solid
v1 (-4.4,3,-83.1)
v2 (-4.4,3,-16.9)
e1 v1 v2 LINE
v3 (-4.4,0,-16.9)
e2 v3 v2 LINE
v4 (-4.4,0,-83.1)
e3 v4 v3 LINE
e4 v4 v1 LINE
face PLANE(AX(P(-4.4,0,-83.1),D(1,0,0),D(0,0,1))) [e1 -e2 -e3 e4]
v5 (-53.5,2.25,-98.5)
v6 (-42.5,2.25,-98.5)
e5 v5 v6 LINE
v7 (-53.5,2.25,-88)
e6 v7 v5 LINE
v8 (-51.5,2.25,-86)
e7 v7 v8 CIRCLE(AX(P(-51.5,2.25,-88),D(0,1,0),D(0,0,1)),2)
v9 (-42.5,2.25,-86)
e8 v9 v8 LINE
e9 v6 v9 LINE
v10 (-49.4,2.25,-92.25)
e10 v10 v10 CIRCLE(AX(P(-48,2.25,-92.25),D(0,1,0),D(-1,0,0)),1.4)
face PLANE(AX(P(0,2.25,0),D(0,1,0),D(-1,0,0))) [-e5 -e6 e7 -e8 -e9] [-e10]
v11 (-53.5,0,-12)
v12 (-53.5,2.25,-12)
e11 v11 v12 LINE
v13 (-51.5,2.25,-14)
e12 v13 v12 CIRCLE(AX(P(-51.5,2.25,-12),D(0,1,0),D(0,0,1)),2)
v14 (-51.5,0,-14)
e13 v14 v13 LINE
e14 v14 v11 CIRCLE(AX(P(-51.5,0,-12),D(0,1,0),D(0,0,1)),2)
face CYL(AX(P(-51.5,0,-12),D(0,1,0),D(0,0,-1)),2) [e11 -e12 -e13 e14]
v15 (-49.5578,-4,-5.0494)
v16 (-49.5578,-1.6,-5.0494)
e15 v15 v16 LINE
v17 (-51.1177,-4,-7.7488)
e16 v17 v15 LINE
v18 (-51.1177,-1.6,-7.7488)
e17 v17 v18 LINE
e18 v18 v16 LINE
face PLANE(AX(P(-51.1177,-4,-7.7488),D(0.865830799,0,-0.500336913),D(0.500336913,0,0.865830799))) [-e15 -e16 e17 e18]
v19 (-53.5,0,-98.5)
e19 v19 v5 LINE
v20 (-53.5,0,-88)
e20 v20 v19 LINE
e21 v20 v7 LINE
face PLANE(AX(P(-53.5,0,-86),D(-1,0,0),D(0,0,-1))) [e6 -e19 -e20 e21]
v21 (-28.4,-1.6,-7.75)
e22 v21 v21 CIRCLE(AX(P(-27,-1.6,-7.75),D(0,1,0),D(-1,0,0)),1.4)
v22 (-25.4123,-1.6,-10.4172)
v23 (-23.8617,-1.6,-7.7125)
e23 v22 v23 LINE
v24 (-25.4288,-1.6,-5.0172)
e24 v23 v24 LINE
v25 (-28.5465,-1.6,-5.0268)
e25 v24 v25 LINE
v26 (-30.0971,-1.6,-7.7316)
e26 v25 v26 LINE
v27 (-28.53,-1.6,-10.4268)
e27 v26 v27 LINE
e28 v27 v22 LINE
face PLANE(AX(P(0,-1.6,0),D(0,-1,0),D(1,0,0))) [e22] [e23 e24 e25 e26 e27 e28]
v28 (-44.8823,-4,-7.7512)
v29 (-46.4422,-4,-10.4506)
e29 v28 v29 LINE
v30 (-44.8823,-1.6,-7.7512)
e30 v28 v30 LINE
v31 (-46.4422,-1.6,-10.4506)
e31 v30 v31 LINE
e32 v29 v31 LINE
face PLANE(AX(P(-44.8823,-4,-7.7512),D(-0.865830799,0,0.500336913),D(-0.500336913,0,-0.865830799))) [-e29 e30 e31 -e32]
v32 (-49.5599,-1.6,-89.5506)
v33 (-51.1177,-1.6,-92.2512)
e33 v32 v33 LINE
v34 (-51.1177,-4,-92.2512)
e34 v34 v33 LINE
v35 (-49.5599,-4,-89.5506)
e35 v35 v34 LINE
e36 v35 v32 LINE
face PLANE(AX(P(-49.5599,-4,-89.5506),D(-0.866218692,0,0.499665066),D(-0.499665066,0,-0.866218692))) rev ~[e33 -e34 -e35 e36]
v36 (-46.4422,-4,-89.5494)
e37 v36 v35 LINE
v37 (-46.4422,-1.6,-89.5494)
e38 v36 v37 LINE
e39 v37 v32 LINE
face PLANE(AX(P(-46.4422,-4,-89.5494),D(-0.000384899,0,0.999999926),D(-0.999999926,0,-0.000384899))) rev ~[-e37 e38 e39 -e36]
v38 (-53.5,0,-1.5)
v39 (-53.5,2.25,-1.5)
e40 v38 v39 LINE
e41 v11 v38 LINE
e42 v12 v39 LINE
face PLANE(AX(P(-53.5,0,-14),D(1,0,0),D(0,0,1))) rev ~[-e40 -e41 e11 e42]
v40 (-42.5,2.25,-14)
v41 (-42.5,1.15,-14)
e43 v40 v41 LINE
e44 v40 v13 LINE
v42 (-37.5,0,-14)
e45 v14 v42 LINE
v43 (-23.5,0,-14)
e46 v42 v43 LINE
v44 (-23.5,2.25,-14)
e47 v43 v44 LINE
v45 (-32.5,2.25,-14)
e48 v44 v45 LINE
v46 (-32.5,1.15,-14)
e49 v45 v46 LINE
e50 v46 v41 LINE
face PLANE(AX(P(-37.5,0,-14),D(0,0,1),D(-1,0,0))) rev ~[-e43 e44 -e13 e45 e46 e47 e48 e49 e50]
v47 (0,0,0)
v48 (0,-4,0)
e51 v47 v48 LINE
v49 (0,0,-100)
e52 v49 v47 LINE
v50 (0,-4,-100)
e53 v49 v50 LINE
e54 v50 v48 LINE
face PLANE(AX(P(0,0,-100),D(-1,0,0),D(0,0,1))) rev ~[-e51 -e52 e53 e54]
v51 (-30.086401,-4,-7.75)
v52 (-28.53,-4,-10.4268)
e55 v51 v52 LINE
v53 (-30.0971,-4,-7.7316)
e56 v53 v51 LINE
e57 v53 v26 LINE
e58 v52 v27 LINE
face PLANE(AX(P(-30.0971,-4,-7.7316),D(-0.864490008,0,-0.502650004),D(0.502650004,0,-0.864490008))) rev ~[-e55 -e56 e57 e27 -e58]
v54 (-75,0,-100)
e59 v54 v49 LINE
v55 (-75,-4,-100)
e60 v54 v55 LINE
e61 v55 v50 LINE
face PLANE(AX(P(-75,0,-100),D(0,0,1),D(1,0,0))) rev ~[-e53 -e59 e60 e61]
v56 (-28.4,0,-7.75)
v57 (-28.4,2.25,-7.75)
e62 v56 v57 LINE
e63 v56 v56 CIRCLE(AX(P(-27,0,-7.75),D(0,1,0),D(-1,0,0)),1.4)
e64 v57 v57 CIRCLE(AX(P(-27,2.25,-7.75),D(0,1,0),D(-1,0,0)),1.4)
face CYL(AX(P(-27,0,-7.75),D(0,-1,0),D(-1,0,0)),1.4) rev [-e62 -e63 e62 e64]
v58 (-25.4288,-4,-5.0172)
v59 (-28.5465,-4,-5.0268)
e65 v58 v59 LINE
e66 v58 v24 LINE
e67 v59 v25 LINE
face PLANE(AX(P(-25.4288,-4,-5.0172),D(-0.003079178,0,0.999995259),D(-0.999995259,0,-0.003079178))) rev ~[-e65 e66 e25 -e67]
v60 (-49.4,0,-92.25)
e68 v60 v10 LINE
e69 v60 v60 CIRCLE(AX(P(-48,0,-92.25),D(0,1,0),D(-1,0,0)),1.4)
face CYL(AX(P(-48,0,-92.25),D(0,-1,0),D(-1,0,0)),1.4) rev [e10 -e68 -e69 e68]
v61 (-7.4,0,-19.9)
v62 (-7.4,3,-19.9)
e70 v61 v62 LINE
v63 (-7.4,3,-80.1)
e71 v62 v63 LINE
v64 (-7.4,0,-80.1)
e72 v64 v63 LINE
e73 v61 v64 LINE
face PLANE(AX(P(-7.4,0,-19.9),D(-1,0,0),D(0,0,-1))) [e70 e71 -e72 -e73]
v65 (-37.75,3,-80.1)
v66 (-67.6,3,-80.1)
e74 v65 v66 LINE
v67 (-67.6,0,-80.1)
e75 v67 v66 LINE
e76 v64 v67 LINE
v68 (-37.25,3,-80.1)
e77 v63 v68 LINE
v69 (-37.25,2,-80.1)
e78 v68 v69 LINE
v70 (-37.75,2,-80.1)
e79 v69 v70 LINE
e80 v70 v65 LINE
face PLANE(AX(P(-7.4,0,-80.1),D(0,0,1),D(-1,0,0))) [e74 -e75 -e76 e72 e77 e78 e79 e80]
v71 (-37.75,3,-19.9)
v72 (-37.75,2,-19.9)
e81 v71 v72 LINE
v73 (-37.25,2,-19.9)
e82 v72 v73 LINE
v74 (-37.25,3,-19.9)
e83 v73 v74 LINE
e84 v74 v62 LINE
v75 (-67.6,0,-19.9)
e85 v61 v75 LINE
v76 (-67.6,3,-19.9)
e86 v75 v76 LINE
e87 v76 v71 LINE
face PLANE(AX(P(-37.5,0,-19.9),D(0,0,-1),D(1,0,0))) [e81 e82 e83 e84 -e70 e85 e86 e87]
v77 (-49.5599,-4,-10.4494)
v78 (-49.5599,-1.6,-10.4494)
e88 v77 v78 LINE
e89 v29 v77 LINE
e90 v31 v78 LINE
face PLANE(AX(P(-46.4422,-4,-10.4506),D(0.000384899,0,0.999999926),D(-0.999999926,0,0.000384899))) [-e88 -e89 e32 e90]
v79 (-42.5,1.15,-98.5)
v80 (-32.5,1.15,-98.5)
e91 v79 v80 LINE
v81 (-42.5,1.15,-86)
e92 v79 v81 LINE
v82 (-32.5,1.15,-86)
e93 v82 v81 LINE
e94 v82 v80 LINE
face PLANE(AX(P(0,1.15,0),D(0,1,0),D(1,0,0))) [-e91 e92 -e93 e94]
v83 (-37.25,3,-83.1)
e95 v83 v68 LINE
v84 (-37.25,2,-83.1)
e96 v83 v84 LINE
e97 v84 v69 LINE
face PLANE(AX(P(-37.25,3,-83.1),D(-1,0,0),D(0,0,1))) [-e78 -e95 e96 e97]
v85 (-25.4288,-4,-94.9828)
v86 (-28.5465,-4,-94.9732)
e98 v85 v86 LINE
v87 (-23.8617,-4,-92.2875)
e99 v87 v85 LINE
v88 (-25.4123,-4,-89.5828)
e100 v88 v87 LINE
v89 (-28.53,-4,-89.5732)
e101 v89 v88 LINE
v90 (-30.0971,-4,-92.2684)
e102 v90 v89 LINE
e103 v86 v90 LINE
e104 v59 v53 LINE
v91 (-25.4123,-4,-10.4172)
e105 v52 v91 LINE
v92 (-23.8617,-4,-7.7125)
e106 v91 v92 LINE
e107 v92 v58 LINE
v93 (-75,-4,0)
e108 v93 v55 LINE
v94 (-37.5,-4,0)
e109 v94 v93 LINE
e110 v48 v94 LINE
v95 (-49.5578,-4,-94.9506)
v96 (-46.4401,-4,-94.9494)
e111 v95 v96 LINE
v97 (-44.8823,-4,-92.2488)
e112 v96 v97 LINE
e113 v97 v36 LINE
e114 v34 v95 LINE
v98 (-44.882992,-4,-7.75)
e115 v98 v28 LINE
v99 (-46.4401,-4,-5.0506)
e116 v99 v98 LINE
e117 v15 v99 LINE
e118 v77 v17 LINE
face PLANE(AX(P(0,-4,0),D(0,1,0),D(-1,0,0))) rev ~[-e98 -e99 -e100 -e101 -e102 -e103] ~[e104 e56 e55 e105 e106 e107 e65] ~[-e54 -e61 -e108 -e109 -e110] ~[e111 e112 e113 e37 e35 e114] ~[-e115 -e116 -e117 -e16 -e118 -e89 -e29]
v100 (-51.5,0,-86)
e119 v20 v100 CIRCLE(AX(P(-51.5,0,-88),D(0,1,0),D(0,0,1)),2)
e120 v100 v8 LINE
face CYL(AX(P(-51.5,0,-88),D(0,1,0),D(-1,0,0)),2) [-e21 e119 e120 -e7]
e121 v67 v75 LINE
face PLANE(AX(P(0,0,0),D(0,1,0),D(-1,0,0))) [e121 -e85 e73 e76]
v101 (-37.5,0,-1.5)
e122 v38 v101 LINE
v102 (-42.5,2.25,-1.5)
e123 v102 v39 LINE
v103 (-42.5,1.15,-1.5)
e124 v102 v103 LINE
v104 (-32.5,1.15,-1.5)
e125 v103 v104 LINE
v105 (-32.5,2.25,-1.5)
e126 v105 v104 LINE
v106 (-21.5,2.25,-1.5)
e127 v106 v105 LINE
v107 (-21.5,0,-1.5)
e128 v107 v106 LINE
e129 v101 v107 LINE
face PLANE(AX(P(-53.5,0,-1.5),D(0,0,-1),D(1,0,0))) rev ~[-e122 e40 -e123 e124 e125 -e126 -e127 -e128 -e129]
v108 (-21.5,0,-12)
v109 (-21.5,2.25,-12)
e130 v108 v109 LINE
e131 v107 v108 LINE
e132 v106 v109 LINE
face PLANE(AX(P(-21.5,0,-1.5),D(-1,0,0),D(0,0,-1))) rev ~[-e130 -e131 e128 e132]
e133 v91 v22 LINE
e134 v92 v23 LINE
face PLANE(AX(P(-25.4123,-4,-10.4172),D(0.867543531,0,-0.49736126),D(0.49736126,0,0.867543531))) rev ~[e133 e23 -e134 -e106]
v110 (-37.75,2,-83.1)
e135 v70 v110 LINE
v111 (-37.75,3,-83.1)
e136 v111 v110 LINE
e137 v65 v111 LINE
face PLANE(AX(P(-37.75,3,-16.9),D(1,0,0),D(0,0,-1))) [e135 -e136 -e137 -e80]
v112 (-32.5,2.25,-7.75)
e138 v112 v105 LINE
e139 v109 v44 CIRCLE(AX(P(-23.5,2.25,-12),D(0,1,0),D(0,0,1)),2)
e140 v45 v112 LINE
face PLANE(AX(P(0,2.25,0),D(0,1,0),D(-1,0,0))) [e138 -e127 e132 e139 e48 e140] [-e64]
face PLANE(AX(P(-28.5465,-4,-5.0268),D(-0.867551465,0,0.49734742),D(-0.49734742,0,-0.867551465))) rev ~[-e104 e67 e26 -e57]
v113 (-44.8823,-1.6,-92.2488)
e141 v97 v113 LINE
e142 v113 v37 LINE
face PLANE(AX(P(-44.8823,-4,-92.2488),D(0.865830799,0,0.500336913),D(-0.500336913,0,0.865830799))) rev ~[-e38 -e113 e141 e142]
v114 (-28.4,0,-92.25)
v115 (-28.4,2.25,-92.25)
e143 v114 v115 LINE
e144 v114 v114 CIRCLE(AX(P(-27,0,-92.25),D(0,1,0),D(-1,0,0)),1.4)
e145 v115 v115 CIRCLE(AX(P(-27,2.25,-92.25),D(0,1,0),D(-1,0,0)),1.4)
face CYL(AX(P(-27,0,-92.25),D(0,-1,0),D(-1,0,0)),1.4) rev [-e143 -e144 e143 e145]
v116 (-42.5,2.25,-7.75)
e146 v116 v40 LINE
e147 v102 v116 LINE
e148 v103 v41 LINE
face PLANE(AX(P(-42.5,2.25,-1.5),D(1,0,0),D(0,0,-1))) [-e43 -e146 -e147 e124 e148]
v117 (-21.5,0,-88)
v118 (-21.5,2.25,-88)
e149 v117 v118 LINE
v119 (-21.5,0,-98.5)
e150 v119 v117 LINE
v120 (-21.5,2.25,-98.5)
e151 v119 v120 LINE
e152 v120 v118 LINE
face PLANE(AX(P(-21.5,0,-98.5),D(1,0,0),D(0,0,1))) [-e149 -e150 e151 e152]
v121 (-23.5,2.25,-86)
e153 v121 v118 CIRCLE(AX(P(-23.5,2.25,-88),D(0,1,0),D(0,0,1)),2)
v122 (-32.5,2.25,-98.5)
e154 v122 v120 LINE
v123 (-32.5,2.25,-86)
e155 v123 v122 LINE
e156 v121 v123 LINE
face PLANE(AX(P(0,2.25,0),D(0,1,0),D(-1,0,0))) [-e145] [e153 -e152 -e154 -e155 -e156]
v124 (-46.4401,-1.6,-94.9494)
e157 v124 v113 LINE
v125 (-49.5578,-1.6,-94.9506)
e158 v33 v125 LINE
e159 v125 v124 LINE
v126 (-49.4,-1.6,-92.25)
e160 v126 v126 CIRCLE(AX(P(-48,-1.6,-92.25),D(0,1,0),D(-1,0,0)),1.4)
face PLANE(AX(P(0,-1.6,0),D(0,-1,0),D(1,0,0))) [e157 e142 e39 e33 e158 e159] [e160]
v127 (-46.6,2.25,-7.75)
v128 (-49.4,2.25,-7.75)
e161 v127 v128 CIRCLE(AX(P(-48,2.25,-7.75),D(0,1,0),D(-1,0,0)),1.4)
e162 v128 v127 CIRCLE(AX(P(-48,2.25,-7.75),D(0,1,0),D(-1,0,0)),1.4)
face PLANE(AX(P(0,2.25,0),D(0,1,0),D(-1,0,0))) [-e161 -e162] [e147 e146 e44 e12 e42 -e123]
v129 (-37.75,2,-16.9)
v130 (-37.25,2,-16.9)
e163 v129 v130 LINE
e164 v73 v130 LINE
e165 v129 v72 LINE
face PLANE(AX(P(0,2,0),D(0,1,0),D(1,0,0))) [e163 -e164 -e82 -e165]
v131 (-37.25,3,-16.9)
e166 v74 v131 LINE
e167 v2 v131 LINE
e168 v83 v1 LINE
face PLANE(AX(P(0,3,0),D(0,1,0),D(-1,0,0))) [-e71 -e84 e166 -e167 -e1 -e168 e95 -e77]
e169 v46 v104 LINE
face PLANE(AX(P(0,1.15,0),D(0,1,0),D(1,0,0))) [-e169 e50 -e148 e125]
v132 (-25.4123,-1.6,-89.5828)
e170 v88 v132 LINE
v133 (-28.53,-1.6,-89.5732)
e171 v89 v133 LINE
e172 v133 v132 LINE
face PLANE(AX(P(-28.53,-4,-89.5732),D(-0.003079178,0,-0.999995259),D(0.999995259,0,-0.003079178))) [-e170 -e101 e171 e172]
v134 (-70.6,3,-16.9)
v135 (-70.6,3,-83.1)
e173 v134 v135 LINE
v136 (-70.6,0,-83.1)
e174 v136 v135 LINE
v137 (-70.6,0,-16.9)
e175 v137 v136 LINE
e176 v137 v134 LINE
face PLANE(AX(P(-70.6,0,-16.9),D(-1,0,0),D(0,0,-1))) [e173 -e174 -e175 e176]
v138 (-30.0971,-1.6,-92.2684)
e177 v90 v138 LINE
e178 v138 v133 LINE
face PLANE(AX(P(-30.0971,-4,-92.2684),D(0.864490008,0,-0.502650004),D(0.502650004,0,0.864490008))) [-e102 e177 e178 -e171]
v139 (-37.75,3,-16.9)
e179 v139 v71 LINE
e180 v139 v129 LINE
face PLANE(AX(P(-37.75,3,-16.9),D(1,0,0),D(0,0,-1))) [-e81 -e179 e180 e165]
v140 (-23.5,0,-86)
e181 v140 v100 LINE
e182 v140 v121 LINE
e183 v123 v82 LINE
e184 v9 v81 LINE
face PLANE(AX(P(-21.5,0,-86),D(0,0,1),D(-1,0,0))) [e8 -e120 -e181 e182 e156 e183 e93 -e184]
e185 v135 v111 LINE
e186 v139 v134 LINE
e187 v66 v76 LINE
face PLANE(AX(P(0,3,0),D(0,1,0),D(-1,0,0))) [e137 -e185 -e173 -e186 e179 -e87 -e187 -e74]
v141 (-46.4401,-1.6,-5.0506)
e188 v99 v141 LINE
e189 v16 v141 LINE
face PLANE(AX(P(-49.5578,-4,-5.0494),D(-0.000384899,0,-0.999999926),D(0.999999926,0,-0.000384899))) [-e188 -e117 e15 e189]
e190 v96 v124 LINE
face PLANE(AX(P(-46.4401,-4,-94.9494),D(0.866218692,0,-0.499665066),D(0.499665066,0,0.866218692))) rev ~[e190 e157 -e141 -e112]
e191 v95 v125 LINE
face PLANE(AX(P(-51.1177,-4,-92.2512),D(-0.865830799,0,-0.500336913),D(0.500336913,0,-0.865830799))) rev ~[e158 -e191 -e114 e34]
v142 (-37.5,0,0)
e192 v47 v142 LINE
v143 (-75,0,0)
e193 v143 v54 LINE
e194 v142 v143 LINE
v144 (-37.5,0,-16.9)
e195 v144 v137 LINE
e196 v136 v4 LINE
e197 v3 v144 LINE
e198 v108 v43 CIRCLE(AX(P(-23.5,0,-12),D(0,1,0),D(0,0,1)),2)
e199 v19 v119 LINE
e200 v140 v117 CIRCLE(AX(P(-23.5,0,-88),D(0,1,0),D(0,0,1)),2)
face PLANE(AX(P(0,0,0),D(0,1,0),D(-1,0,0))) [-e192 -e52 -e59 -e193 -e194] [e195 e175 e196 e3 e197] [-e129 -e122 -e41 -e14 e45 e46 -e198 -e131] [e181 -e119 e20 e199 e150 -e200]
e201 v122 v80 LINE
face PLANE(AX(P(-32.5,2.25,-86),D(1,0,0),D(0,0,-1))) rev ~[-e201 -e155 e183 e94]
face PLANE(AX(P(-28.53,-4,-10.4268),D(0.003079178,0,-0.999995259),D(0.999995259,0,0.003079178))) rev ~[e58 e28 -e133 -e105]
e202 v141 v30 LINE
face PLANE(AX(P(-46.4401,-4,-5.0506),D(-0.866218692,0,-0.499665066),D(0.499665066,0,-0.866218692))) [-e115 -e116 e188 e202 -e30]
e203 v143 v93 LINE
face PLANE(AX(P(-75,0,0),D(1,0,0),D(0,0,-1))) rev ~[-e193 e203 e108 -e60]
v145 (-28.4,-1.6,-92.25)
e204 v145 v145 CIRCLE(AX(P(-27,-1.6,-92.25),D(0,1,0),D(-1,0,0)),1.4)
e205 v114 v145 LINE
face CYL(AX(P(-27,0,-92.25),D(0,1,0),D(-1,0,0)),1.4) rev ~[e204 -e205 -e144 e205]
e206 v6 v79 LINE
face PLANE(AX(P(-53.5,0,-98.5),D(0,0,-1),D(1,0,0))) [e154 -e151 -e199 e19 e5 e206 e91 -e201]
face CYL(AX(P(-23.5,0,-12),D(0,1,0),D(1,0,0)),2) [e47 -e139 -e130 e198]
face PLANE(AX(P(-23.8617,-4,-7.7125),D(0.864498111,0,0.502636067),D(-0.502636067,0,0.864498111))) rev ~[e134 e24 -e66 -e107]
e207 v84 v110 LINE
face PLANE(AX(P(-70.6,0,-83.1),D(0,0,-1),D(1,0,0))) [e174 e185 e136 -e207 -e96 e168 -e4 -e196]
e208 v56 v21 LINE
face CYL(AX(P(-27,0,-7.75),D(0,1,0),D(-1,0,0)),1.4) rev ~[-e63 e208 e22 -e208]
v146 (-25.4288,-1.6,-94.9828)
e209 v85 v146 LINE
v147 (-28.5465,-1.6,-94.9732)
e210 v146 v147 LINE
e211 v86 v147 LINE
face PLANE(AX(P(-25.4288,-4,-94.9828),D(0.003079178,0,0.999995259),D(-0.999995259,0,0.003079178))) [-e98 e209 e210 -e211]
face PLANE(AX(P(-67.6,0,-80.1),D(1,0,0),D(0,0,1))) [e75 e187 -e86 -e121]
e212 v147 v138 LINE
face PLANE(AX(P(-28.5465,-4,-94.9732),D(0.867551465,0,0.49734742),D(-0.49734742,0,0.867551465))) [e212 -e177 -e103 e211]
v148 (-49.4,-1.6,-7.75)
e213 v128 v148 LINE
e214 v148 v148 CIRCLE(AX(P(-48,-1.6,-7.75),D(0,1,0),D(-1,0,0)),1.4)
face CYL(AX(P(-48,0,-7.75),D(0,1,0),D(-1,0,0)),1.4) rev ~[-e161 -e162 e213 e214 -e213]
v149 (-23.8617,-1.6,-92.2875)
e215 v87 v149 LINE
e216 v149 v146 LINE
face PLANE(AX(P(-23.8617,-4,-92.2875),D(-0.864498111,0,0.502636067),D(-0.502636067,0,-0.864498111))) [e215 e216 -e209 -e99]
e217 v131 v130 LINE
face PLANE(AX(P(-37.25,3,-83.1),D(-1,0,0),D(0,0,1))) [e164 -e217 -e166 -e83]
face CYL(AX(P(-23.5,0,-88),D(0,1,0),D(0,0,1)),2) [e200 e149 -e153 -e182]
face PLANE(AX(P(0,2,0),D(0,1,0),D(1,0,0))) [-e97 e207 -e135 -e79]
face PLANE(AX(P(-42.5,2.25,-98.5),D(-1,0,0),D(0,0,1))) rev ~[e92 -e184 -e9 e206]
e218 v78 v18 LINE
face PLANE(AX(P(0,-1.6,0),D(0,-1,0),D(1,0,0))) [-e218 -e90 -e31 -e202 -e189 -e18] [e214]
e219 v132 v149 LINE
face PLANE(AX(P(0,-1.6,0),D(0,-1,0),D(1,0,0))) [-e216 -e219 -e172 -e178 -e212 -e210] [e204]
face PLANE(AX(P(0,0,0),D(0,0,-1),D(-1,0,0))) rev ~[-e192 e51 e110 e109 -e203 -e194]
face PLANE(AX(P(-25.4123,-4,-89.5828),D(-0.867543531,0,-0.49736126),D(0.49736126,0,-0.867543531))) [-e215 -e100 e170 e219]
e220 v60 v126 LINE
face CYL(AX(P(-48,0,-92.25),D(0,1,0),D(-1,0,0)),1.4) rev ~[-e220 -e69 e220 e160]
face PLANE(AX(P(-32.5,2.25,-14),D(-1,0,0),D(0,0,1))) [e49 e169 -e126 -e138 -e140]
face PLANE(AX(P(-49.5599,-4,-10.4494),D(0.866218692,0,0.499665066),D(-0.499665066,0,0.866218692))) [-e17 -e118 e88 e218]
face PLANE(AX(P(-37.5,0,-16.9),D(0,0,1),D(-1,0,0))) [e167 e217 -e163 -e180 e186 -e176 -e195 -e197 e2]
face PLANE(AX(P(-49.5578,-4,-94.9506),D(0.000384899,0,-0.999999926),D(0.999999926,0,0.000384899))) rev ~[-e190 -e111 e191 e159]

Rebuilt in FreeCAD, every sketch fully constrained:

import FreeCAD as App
import Part
import Sketcher
from FreeCAD import Vector


def edges_at(feature, points):
    """Names of the edges that pass closest to the given points."""
    edges = feature.Shape.Edges
    near = lambda p: min(range(len(edges)), key=lambda i: edges[i].distToShape(Part.Vertex(*p))[0])
    return sorted({f"Edge{near(p) + 1}" for p in points})

doc = App.newDocument("Part")
body = doc.addObject("PartDesign::Body", "Body")
body.AllowCompound = True

# Sketch on XZ plane
sketch1 = doc.addObject("Sketcher::SketchObject", "Sketch")
body.addObject(sketch1)
sketch1.AttachmentSupport = (doc.XZ_Plane, [""])
sketch1.MapMode = "FlatFace"
sketch1.addGeometry([
    Part.LineSegment(Vector(-70.6, -16.9, 0), Vector(-37.5, -16.9, 0)),  # 0
    Part.LineSegment(Vector(-37.5, -16.9, 0), Vector(-4.4, -16.9, 0)),  # 1
    Part.LineSegment(Vector(-4.4, -16.9, 0), Vector(-4.4, -83.1, 0)),  # 2
    Part.LineSegment(Vector(-4.4, -83.1, 0), Vector(-70.6, -83.1, 0)),  # 3
    Part.LineSegment(Vector(-70.6, -83.1, 0), Vector(-70.6, -16.9, 0)),  # 4
    Part.LineSegment(Vector(-7.4, -19.9, 0), Vector(-37.5, -19.9, 0)),  # 5
    Part.LineSegment(Vector(-37.5, -19.9, 0), Vector(-67.6, -19.9, 0)),  # 6
    Part.LineSegment(Vector(-67.6, -19.9, 0), Vector(-67.6, -80.1, 0)),  # 7
    Part.LineSegment(Vector(-67.6, -80.1, 0), Vector(-7.4, -80.1, 0)),  # 8
    Part.LineSegment(Vector(-7.4, -80.1, 0), Vector(-7.4, -19.9, 0)),  # 9
], False)
sketch1.addConstraint([
    Sketcher.Constraint("Coincident", 0, 2, 1, 1),
    Sketcher.Constraint("Coincident", 1, 2, 2, 1),
    Sketcher.Constraint("Coincident", 2, 2, 3, 1),
    Sketcher.Constraint("Coincident", 3, 2, 4, 1),
    Sketcher.Constraint("Coincident", 4, 2, 0, 1),
    Sketcher.Constraint("Coincident", 5, 2, 6, 1),
    Sketcher.Constraint("Coincident", 6, 2, 7, 1),
    Sketcher.Constraint("Coincident", 7, 2, 8, 1),
    Sketcher.Constraint("Coincident", 8, 2, 9, 1),
    Sketcher.Constraint("Coincident", 9, 2, 5, 1),
    Sketcher.Constraint("Horizontal", 0),
    Sketcher.Constraint("Horizontal", 1),
    Sketcher.Constraint("Vertical", 2),
    Sketcher.Constraint("Horizontal", 3),
    Sketcher.Constraint("Vertical", 4),
    Sketcher.Constraint("Horizontal", 5),
    Sketcher.Constraint("Horizontal", 6),
    Sketcher.Constraint("Vertical", 7),
    Sketcher.Constraint("Horizontal", 8),
    Sketcher.Constraint("Vertical", 9),
    Sketcher.Constraint("Vertical", 0, 2, 5, 2),
    Sketcher.Constraint("Equal", 0, 1),
    Sketcher.Constraint("Equal", 5, 6),
    Sketcher.Constraint("Equal", 3, 2),
    Sketcher.Constraint("Equal", 8, 7),
    Sketcher.Constraint("DistanceX", 8, 1, 8, 2, 60.2),
    Sketcher.Constraint("DistanceY", 5, 2, 0, 2, 3.0),
    Sketcher.Constraint("DistanceX", 4, 2, 6, 2, 3.0),
    Sketcher.Constraint("DistanceX", 0, 2, -1, 1, 37.5),
    Sketcher.Constraint("DistanceY", 0, 2, -1, 1, 16.9),
])
pad1 = doc.addObject("PartDesign::Pad", "Pad")
body.addObject(pad1)
pad1.Profile = sketch1
pad1.Length = 3
pad1.Reversed = True

# Sketch on XZ plane
sketch2 = doc.addObject("Sketcher::SketchObject", "Sketch001")
body.addObject(sketch2)
sketch2.AttachmentSupport = (doc.XZ_Plane, [""])
sketch2.MapMode = "FlatFace"
sketch2.addGeometry([
    Part.LineSegment(Vector(-37.5, 0, 0), Vector(0, 0, 0)),  # 0
    Part.LineSegment(Vector(0, 0, 0), Vector(0, -100, 0)),  # 1
    Part.LineSegment(Vector(0, -100, 0), Vector(-75, -100, 0)),  # 2
    Part.LineSegment(Vector(-75, -100, 0), Vector(-75, 0, 0)),  # 3
    Part.LineSegment(Vector(-75, 0, 0), Vector(-37.5, 0, 0)),  # 4
    Part.Circle(Vector(-48, -7.75, 0), Vector(0, 0, 1), 1.4),  # 5
    Part.LineSegment(Vector(-4.4, -16.9, 0), Vector(-37.5, -16.9, 0)),  # 6
    Part.LineSegment(Vector(-37.5, -16.9, 0), Vector(-70.6, -16.9, 0)),  # 7
    Part.LineSegment(Vector(-70.6, -16.9, 0), Vector(-70.6, -83.1, 0)),  # 8
    Part.LineSegment(Vector(-70.6, -83.1, 0), Vector(-4.4, -83.1, 0)),  # 9
    Part.LineSegment(Vector(-4.4, -83.1, 0), Vector(-4.4, -16.9, 0)),  # 10
    Part.Circle(Vector(-27, -7.75, 0), Vector(0, 0, 1), 1.4),  # 11
    Part.Circle(Vector(-27, -92.25, 0), Vector(0, 0, 1), 1.4),  # 12
    Part.Circle(Vector(-48, -92.25, 0), Vector(0, 0, 1), 1.4),  # 13
], False)
sketch2.addConstraint([
    Sketcher.Constraint("Coincident", 0, 2, 1, 1),
    Sketcher.Constraint("Coincident", 1, 2, 2, 1),
    Sketcher.Constraint("Coincident", 2, 2, 3, 1),
    Sketcher.Constraint("Coincident", 3, 2, 4, 1),
    Sketcher.Constraint("Coincident", 4, 2, 0, 1),
    Sketcher.Constraint("Coincident", 6, 2, 7, 1),
    Sketcher.Constraint("Coincident", 7, 2, 8, 1),
    Sketcher.Constraint("Coincident", 8, 2, 9, 1),
    Sketcher.Constraint("Coincident", 9, 2, 10, 1),
    Sketcher.Constraint("Coincident", 10, 2, 6, 1),
    Sketcher.Constraint("Horizontal", 0),
    Sketcher.Constraint("Vertical", 1),
    Sketcher.Constraint("Horizontal", 2),
    Sketcher.Constraint("Vertical", 3),
    Sketcher.Constraint("Horizontal", 4),
    Sketcher.Constraint("Horizontal", 6),
    Sketcher.Constraint("Horizontal", 7),
    Sketcher.Constraint("Vertical", 8),
    Sketcher.Constraint("Horizontal", 9),
    Sketcher.Constraint("Vertical", 10),
    Sketcher.Constraint("Coincident", 0, 2, -1, 1),
    Sketcher.Constraint("Equal", 5, 11),
    Sketcher.Constraint("Equal", 11, 12),
    Sketcher.Constraint("Equal", 12, 13),
    Sketcher.Constraint("Horizontal", 5, 3, 11, 3),
    Sketcher.Constraint("Horizontal", 12, 3, 13, 3),
    Sketcher.Constraint("Vertical", 11, 3, 12, 3),
    Sketcher.Constraint("Vertical", 5, 3, 13, 3),
    Sketcher.Constraint("Vertical", 4, 2, 6, 2),
    Sketcher.Constraint("Equal", 0, 4),
    Sketcher.Constraint("Equal", 6, 7),
    Sketcher.Constraint("Equal", 9, 8),
    Sketcher.Constraint("Diameter", 5, 2.8),
    Sketcher.Constraint("DistanceX", 2, 2, 2, 1, 75.0),
    Sketcher.Constraint("DistanceY", 1, 2, 1, 1, 100.0),
    Sketcher.Constraint("DistanceX", 6, 2, 6, 1, 33.1),
    Sketcher.Constraint("DistanceX", 5, 3, -1, 1, 48.0),
    Sketcher.Constraint("DistanceX", 11, 3, -1, 1, 27.0),
    Sketcher.Constraint("DistanceY", 6, 2, -1, 1, 16.9),
    Sketcher.Constraint("DistanceY", 12, 3, 11, 3, 84.5),
    Sketcher.Constraint("DistanceY", 5, 3, -1, 1, 7.75),
])
pad2 = doc.addObject("PartDesign::Pad", "Pad001")
body.addObject(pad2)
pad2.Profile = sketch2
pad2.Length = 4

# Sketch on XZ plane
sketch3 = doc.addObject("Sketcher::SketchObject", "Sketch002")
body.addObject(sketch3)
sketch3.AttachmentSupport = (doc.XZ_Plane, [""])
sketch3.MapMode = "FlatFace"
sketch3.addGeometry([
    Part.LineSegment(Vector(-53.5, -1.5, 0), Vector(-21.5, -1.5, 0)),  # 0
    Part.LineSegment(Vector(-21.5, -1.5, 0), Vector(-21.5, -14, 0)),  # 1
    Part.LineSegment(Vector(-21.5, -14, 0), Vector(-53.5, -14, 0)),  # 2
    Part.LineSegment(Vector(-53.5, -14, 0), Vector(-53.5, -1.5, 0)),  # 3
    Part.Circle(Vector(-48, -7.75, 0), Vector(0, 0, 1), 1.4),  # 4
    Part.Circle(Vector(-27, -7.75, 0), Vector(0, 0, 1), 1.4),  # 5
    Part.LineSegment(Vector(-21.5, -98.5, 0), Vector(-53.5, -98.5, 0)),  # 6
    Part.LineSegment(Vector(-53.5, -98.5, 0), Vector(-53.5, -86, 0)),  # 7
    Part.LineSegment(Vector(-53.5, -86, 0), Vector(-21.5, -86, 0)),  # 8
    Part.LineSegment(Vector(-21.5, -86, 0), Vector(-21.5, -98.5, 0)),  # 9
    Part.Circle(Vector(-27, -92.25, 0), Vector(0, 0, 1), 1.4),  # 10
    Part.Circle(Vector(-48, -92.25, 0), Vector(0, 0, 1), 1.4),  # 11
], False)
sketch3.addConstraint([
    Sketcher.Constraint("Coincident", 0, 2, 1, 1),
    Sketcher.Constraint("Coincident", 1, 2, 2, 1),
    Sketcher.Constraint("Coincident", 2, 2, 3, 1),
    Sketcher.Constraint("Coincident", 3, 2, 0, 1),
    Sketcher.Constraint("Coincident", 6, 2, 7, 1),
    Sketcher.Constraint("Coincident", 7, 2, 8, 1),
    Sketcher.Constraint("Coincident", 8, 2, 9, 1),
    Sketcher.Constraint("Coincident", 9, 2, 6, 1),
    Sketcher.Constraint("Horizontal", 0),
    Sketcher.Constraint("Vertical", 1),
    Sketcher.Constraint("Horizontal", 2),
    Sketcher.Constraint("Vertical", 3),
    Sketcher.Constraint("Horizontal", 6),
    Sketcher.Constraint("Vertical", 7),
    Sketcher.Constraint("Horizontal", 8),
    Sketcher.Constraint("Vertical", 9),
    Sketcher.Constraint("Equal", 4, 5),
    Sketcher.Constraint("Equal", 5, 10),
    Sketcher.Constraint("Equal", 10, 11),
    Sketcher.Constraint("Horizontal", 4, 3, 5, 3),
    Sketcher.Constraint("Horizontal", 10, 3, 11, 3),
    Sketcher.Constraint("Vertical", 5, 3, 10, 3),
    Sketcher.Constraint("Vertical", 4, 3, 11, 3),
    Sketcher.Constraint("Vertical", 3, 2, 6, 2),
    Sketcher.Constraint("Vertical", 1, 2, 8, 2),
    Sketcher.Constraint("Equal", 3, 7),
    Sketcher.Constraint("Diameter", 4, 2.8),
    Sketcher.Constraint("DistanceX", 0, 1, 0, 2, 32.0),
    Sketcher.Constraint("DistanceY", 1, 2, 1, 1, 12.5),
    Sketcher.Constraint("DistanceY", 1, 2, -1, 1, 14.0),
    Sketcher.Constraint("DistanceX", 5, 3, 0, 2, 5.5),
    Sketcher.Constraint("DistanceX", 2, 2, 4, 3, 5.5),
    Sketcher.Constraint("DistanceX", 4, 3, -1, 1, 48.0),
    Sketcher.Constraint("DistanceY", 7, 2, -1, 1, 86.0),
    Sketcher.Constraint("DistanceY", 10, 3, 5, 3, 84.5),
    Sketcher.Constraint("DistanceY", 4, 3, -1, 1, 7.75),
])
pad3 = doc.addObject("PartDesign::Pad", "Pad002")
body.addObject(pad3)
pad3.Profile = sketch3
pad3.Length = 2.25
pad3.Reversed = True

# Sketch on XZ plane
sketch4 = doc.addObject("Sketcher::SketchObject", "Sketch003")
body.addObject(sketch4)
sketch4.AttachmentSupport = (doc.XZ_Plane, [""])
sketch4.MapMode = "FlatFace"
sketch4.AttachmentOffset = App.Placement(Vector(0, 0, -2.25), App.Rotation())
sketch4.addGeometry([
    Part.LineSegment(Vector(-42.5, -14, 0), Vector(-42.5, -1.5, 0)),  # 0
    Part.LineSegment(Vector(-42.5, -1.5, 0), Vector(-32.5, -1.5, 0)),  # 1
    Part.LineSegment(Vector(-32.5, -1.5, 0), Vector(-32.5, -14, 0)),  # 2
    Part.LineSegment(Vector(-32.5, -14, 0), Vector(-42.5, -14, 0)),  # 3
    Part.LineSegment(Vector(-32.5, -98.5, 0), Vector(-42.5, -98.5, 0)),  # 4
    Part.LineSegment(Vector(-42.5, -98.5, 0), Vector(-42.5, -86, 0)),  # 5
    Part.LineSegment(Vector(-42.5, -86, 0), Vector(-32.5, -86, 0)),  # 6
    Part.LineSegment(Vector(-32.5, -86, 0), Vector(-32.5, -98.5, 0)),  # 7
], False)
sketch4.addConstraint([
    Sketcher.Constraint("Coincident", 0, 2, 1, 1),
    Sketcher.Constraint("Coincident", 1, 2, 2, 1),
    Sketcher.Constraint("Coincident", 2, 2, 3, 1),
    Sketcher.Constraint("Coincident", 3, 2, 0, 1),
    Sketcher.Constraint("Coincident", 4, 2, 5, 1),
    Sketcher.Constraint("Coincident", 5, 2, 6, 1),
    Sketcher.Constraint("Coincident", 6, 2, 7, 1),
    Sketcher.Constraint("Coincident", 7, 2, 4, 1),
    Sketcher.Constraint("Vertical", 0),
    Sketcher.Constraint("Horizontal", 1),
    Sketcher.Constraint("Vertical", 2),
    Sketcher.Constraint("Horizontal", 3),
    Sketcher.Constraint("Horizontal", 4),
    Sketcher.Constraint("Vertical", 5),
    Sketcher.Constraint("Horizontal", 6),
    Sketcher.Constraint("Vertical", 7),
    Sketcher.Constraint("Vertical", 3, 2, 4, 2),
    Sketcher.Constraint("Vertical", 2, 2, 6, 2),
    Sketcher.Constraint("Equal", 2, 5),
    Sketcher.Constraint("DistanceX", 1, 1, 1, 2, 10.0),
    Sketcher.Constraint("DistanceY", 0, 1, 0, 2, 12.5),
    Sketcher.Constraint("DistanceY", 2, 2, -1, 1, 14.0),
    Sketcher.Constraint("DistanceY", 5, 2, -1, 1, 86.0),
    Sketcher.Constraint("DistanceX", 0, 2, -1, 1, 42.5),
])
pocket1 = doc.addObject("PartDesign::Pocket", "Pocket")
body.addObject(pocket1)
pocket1.Profile = sketch4
pocket1.Length = 1.1
pocket1.Reversed = True

# Sketch on XZ plane
sketch5 = doc.addObject("Sketcher::SketchObject", "Sketch004")
body.addObject(sketch5)
sketch5.AttachmentSupport = (doc.XZ_Plane, [""])
sketch5.MapMode = "FlatFace"
sketch5.addGeometry([
    Part.LineSegment(Vector(-70.6, -16.9, 0), Vector(-37.5, -16.9, 0)),  # 0
    Part.LineSegment(Vector(-37.5, -16.9, 0), Vector(-4.4, -16.9, 0)),  # 1
    Part.LineSegment(Vector(-4.4, -16.9, 0), Vector(-4.4, -83.1, 0)),  # 2
    Part.LineSegment(Vector(-4.4, -83.1, 0), Vector(-70.6, -83.1, 0)),  # 3
    Part.LineSegment(Vector(-70.6, -83.1, 0), Vector(-70.6, -16.9, 0)),  # 4
], False)
sketch5.addConstraint([
    Sketcher.Constraint("Coincident", 0, 2, 1, 1),
    Sketcher.Constraint("Coincident", 1, 2, 2, 1),
    Sketcher.Constraint("Coincident", 2, 2, 3, 1),
    Sketcher.Constraint("Coincident", 3, 2, 4, 1),
    Sketcher.Constraint("Coincident", 4, 2, 0, 1),
    Sketcher.Constraint("Horizontal", 0),
    Sketcher.Constraint("Horizontal", 1),
    Sketcher.Constraint("Vertical", 2),
    Sketcher.Constraint("Horizontal", 3),
    Sketcher.Constraint("Vertical", 4),
    Sketcher.Constraint("Equal", 0, 1),
    Sketcher.Constraint("Equal", 3, 2),
    Sketcher.Constraint("DistanceX", 0, 1, 0, 2, 33.1),
    Sketcher.Constraint("DistanceX", 0, 2, -1, 1, 37.5),
    Sketcher.Constraint("DistanceY", 0, 2, -1, 1, 16.9),
])
pad4 = doc.addObject("PartDesign::Pad", "Pad003")
body.addObject(pad4)
pad4.Profile = sketch5
pad4.Length = 4

# Sketch on XZ plane
sketch6 = doc.addObject("Sketcher::SketchObject", "Sketch005")
body.addObject(sketch6)
sketch6.AttachmentSupport = (doc.XZ_Plane, [""])
sketch6.MapMode = "FlatFace"
sketch6.AttachmentOffset = App.Placement(Vector(0, 0, -3), App.Rotation())
sketch6.addGeometry([
    Part.LineSegment(Vector(-37.75, -83.1, 0), Vector(-37.75, -16.9, 0)),
    Part.LineSegment(Vector(-37.75, -16.9, 0), Vector(-37.25, -16.9, 0)),
    Part.LineSegment(Vector(-37.25, -16.9, 0), Vector(-37.25, -83.1, 0)),
    Part.LineSegment(Vector(-37.25, -83.1, 0), Vector(-37.75, -83.1, 0)),
], False)
sketch6.addConstraint([
    Sketcher.Constraint("Coincident", 0, 2, 1, 1),
    Sketcher.Constraint("Coincident", 1, 2, 2, 1),
    Sketcher.Constraint("Coincident", 2, 2, 3, 1),
    Sketcher.Constraint("Coincident", 3, 2, 0, 1),
    Sketcher.Constraint("Vertical", 0),
    Sketcher.Constraint("Horizontal", 1),
    Sketcher.Constraint("Vertical", 2),
    Sketcher.Constraint("Horizontal", 3),
    Sketcher.Constraint("DistanceX", 1, 1, 1, 2, 0.5),
    Sketcher.Constraint("DistanceY", 0, 1, 0, 2, 66.2),
    Sketcher.Constraint("DistanceY", 0, 2, -1, 1, 16.9),
    Sketcher.Constraint("DistanceX", 0, 2, -1, 1, 37.75),
])
pocket2 = doc.addObject("PartDesign::Pocket", "Pocket001")
body.addObject(pocket2)
pocket2.Profile = sketch6
pocket2.Length = 1
pocket2.Reversed = True
doc.recompute()

fillet = doc.addObject("PartDesign::Fillet", "Fillet")
body.addObject(fillet)
fillet.Base = (pocket2, edges_at(pocket2, [
    (-53.5, 1.125, -86),
    (-21.5, 1.125, -86),
    (-21.5, 1.125, -14),
    (-53.5, 1.125, -14),
]))
fillet.Radius = 2

# Sketch on XZ plane
sketch7 = doc.addObject("Sketcher::SketchObject", "Sketch006")
body.addObject(sketch7)
sketch7.AttachmentSupport = (doc.XZ_Plane, [""])
sketch7.MapMode = "FlatFace"
sketch7.AttachmentOffset = App.Placement(Vector(0, 0, 4), App.Rotation())
sketch7.addGeometry([
    Part.LineSegment(Vector(-44.8823, -7.7512, 0), Vector(-46.4401, -5.0506, 0)),  # 0
    Part.LineSegment(Vector(-46.4401, -5.0506, 0), Vector(-49.5578, -5.0494, 0)),  # 1
    Part.LineSegment(Vector(-49.5578, -5.0494, 0), Vector(-51.1177, -7.7488, 0)),  # 2
    Part.LineSegment(Vector(-51.1177, -7.7488, 0), Vector(-49.5599, -10.4494, 0)),  # 3
    Part.LineSegment(Vector(-49.5599, -10.4494, 0), Vector(-46.4422, -10.4506, 0)),  # 4
    Part.LineSegment(Vector(-46.4422, -10.4506, 0), Vector(-44.8823, -7.7512, 0)),  # 5
    Part.LineSegment(Vector(-25.4288, -5.0172, 0), Vector(-28.5465, -5.0268, 0)),  # 6
    Part.LineSegment(Vector(-28.5465, -5.0268, 0), Vector(-30.0971, -7.7316, 0)),  # 7
    Part.LineSegment(Vector(-30.0971, -7.7316, 0), Vector(-28.53, -10.4268, 0)),  # 8
    Part.LineSegment(Vector(-28.53, -10.4268, 0), Vector(-25.4123, -10.4172, 0)),  # 9
    Part.LineSegment(Vector(-25.4123, -10.4172, 0), Vector(-23.8617, -7.7125, 0)),  # 10
    Part.LineSegment(Vector(-23.8617, -7.7125, 0), Vector(-25.4288, -5.0172, 0)),  # 11
    Part.LineSegment(Vector(-49.5578, -94.9506, 0), Vector(-46.4401, -94.9494, 0)),  # 12
    Part.LineSegment(Vector(-46.4401, -94.9494, 0), Vector(-44.8823, -92.2488, 0)),  # 13
    Part.LineSegment(Vector(-44.8823, -92.2488, 0), Vector(-46.4422, -89.5494, 0)),  # 14
    Part.LineSegment(Vector(-46.4422, -89.5494, 0), Vector(-49.5599, -89.5506, 0)),  # 15
    Part.LineSegment(Vector(-49.5599, -89.5506, 0), Vector(-51.1177, -92.2512, 0)),  # 16
    Part.LineSegment(Vector(-51.1177, -92.2512, 0), Vector(-49.5578, -94.9506, 0)),  # 17
    Part.LineSegment(Vector(-25.4288, -94.9828, 0), Vector(-23.8617, -92.2875, 0)),  # 18
    Part.LineSegment(Vector(-23.8617, -92.2875, 0), Vector(-25.4123, -89.5828, 0)),  # 19
    Part.LineSegment(Vector(-25.4123, -89.5828, 0), Vector(-28.53, -89.5732, 0)),  # 20
    Part.LineSegment(Vector(-28.53, -89.5732, 0), Vector(-30.0971, -92.2684, 0)),  # 21
    Part.LineSegment(Vector(-30.0971, -92.2684, 0), Vector(-28.5465, -94.9732, 0)),  # 22
    Part.LineSegment(Vector(-28.5465, -94.9732, 0), Vector(-25.4288, -94.9828, 0)),  # 23
], False)
sketch7.addConstraint([
    Sketcher.Constraint("Coincident", 0, 2, 1, 1),
    Sketcher.Constraint("Coincident", 1, 2, 2, 1),
    Sketcher.Constraint("Coincident", 2, 2, 3, 1),
    Sketcher.Constraint("Coincident", 3, 2, 4, 1),
    Sketcher.Constraint("Coincident", 4, 2, 5, 1),
    Sketcher.Constraint("Coincident", 5, 2, 0, 1),
    Sketcher.Constraint("Coincident", 6, 2, 7, 1),
    Sketcher.Constraint("Coincident", 7, 2, 8, 1),
    Sketcher.Constraint("Coincident", 8, 2, 9, 1),
    Sketcher.Constraint("Coincident", 9, 2, 10, 1),
    Sketcher.Constraint("Coincident", 10, 2, 11, 1),
    Sketcher.Constraint("Coincident", 11, 2, 6, 1),
    Sketcher.Constraint("Coincident", 12, 2, 13, 1),
    Sketcher.Constraint("Coincident", 13, 2, 14, 1),
    Sketcher.Constraint("Coincident", 14, 2, 15, 1),
    Sketcher.Constraint("Coincident", 15, 2, 16, 1),
    Sketcher.Constraint("Coincident", 16, 2, 17, 1),
    Sketcher.Constraint("Coincident", 17, 2, 12, 1),
    Sketcher.Constraint("Coincident", 18, 2, 19, 1),
    Sketcher.Constraint("Coincident", 19, 2, 20, 1),
    Sketcher.Constraint("Coincident", 20, 2, 21, 1),
    Sketcher.Constraint("Coincident", 21, 2, 22, 1),
    Sketcher.Constraint("Coincident", 22, 2, 23, 1),
    Sketcher.Constraint("Coincident", 23, 2, 18, 1),
    Sketcher.Constraint("Parallel", 0, 3),
    Sketcher.Constraint("Parallel", 1, 4),
    Sketcher.Constraint("Parallel", 2, 5),
    Sketcher.Constraint("Parallel", 6, 9),
    Sketcher.Constraint("Parallel", 7, 10),
    Sketcher.Constraint("Parallel", 8, 11),
    Sketcher.Constraint("Parallel", 12, 15),
    Sketcher.Constraint("Parallel", 13, 16),
    Sketcher.Constraint("Parallel", 14, 17),
    Sketcher.Constraint("Parallel", 18, 21),
    Sketcher.Constraint("Parallel", 19, 22),
    Sketcher.Constraint("Parallel", 20, 23),
    Sketcher.Constraint("Vertical", 0, 2, 12, 2),
    Sketcher.Constraint("Vertical", 5, 2, 13, 2),
    Sketcher.Constraint("Vertical", 4, 2, 14, 2),
    Sketcher.Constraint("Vertical", 3, 2, 15, 2),
    Sketcher.Constraint("Vertical", 2, 2, 16, 2),
    Sketcher.Constraint("Vertical", 10, 2, 18, 2),
    Sketcher.Constraint("Vertical", 9, 2, 19, 2),
    Sketcher.Constraint("Vertical", 8, 2, 20, 2),
    Sketcher.Constraint("Vertical", 7, 2, 21, 2),
    Sketcher.Constraint("Vertical", 6, 2, 22, 2),
    Sketcher.Constraint("Equal", 0, 1),
    Sketcher.Constraint("Equal", 1, 2),
    Sketcher.Constraint("Equal", 2, 3),
    Sketcher.Constraint("Equal", 5, 6),
    Sketcher.Constraint("Equal", 6, 7),
    Sketcher.Constraint("Equal", 7, 8),
    Sketcher.Constraint("Equal", 8, 9),
    Sketcher.Constraint("Equal", 12, 13),
    Sketcher.Constraint("Equal", 13, 14),
    Sketcher.Constraint("Equal", 17, 18),
    Sketcher.Constraint("Equal", 18, 19),
    Sketcher.Constraint("DistanceY", 3, 2, 1, 2, 5.4),
    Sketcher.Constraint("DistanceY", 8, 2, 6, 2, 5.4),
    Sketcher.Constraint("DistanceY", 12, 2, 3, 2, 84.5),
    Sketcher.Constraint("DistanceY", 15, 2, 4, 2, 79.1),
    Sketcher.Constraint("DistanceX", 0, 2, -1, 1, 46.44),
    Sketcher.Constraint("DistanceX", 3, 2, -1, 1, 49.56),
    Sketcher.Constraint("DistanceX", 8, 2, -1, 1, 28.53),
    Sketcher.Constraint("DistanceX", 2, 2, 1, 2, 1.56),
    Sketcher.Constraint("DistanceX", 7, 2, -1, 1, 30.097),
    Sketcher.Constraint("DistanceY", 7, 2, 0, 2, 2.681),
    Sketcher.Constraint("DistanceY", 9, 2, 5, 2, 2.666),
    Sketcher.Constraint("DistanceY", 13, 2, 8, 2, 81.822),
    Sketcher.Constraint("DistanceY", 12, 2, 18, 2, 2.662),
    Sketcher.Constraint("DistanceY", 18, 2, 21, 2, 0.019),
    Sketcher.Constraint("DistanceY", 0, 2, -1, 1, 5.0506),
])
pocket3 = doc.addObject("PartDesign::Pocket", "Pocket002")
body.addObject(pocket3)
pocket3.Profile = sketch7
pocket3.Length = 2.4

doc.recompute()
